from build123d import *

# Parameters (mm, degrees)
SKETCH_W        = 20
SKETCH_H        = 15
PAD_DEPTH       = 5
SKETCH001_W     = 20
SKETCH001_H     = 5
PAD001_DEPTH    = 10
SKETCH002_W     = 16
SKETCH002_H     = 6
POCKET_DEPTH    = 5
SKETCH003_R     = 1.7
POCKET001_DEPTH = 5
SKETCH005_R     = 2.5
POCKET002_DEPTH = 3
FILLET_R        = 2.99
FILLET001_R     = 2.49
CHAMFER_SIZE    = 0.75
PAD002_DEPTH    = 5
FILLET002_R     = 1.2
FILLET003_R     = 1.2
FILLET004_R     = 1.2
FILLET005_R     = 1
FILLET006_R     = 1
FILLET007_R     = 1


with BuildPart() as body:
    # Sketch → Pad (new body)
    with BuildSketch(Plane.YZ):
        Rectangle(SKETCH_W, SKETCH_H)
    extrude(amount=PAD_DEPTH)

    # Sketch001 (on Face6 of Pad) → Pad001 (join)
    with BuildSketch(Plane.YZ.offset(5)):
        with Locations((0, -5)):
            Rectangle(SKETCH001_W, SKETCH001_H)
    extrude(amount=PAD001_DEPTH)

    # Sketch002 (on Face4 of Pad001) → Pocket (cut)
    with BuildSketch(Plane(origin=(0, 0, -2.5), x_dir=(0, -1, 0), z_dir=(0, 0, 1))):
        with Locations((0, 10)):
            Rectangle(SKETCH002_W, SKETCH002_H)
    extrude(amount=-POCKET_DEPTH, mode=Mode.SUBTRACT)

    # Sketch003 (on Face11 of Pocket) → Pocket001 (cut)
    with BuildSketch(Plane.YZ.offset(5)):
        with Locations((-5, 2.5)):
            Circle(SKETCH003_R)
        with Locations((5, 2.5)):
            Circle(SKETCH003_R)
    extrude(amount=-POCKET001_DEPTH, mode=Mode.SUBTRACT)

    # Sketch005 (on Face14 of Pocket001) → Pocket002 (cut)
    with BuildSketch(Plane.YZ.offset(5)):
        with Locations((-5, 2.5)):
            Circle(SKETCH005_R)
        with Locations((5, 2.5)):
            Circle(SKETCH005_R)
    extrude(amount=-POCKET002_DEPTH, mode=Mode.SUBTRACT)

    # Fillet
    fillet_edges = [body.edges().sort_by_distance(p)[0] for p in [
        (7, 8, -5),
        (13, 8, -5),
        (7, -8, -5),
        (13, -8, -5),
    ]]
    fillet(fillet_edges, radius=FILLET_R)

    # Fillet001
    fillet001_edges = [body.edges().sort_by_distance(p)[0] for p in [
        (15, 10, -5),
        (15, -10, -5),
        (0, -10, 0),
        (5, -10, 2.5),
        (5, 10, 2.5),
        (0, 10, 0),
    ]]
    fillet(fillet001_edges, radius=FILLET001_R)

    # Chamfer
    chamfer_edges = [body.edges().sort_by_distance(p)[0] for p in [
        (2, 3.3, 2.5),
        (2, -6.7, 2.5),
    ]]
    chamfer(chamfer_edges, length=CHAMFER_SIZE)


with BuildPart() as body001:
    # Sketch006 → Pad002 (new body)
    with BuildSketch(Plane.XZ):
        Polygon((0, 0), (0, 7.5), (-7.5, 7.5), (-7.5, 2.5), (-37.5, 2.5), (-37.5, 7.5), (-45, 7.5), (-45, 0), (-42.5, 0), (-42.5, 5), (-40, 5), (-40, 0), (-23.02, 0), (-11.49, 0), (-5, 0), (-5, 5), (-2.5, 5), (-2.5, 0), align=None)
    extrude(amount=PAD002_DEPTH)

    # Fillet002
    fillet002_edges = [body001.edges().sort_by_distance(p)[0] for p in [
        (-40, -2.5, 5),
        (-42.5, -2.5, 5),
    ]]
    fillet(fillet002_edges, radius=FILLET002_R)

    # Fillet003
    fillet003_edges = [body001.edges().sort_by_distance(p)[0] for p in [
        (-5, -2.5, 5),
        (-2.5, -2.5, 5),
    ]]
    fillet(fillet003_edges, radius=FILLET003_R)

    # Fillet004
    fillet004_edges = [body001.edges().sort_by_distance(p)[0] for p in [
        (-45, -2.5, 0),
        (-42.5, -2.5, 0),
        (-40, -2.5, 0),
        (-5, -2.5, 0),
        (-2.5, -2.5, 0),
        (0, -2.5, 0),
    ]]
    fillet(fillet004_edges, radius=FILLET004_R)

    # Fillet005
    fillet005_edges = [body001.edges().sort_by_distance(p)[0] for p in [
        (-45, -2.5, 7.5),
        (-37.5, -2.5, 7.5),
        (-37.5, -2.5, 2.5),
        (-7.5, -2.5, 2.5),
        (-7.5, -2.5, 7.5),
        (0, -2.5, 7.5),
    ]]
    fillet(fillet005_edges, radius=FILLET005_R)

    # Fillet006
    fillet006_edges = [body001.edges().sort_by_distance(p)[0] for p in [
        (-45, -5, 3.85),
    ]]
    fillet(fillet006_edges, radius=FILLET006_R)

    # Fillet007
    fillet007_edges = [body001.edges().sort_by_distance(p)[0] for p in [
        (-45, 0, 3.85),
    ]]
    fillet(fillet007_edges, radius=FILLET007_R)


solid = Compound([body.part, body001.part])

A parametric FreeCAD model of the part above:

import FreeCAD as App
import Part
import Sketcher


def edges_at(feature, points):
    """Names of the edges that pass closest to the given points."""
    edges = feature.Shape.Edges
    near = lambda p: min(range(len(edges)), key=lambda i: edges[i].distToShape(Part.Vertex(*p))[0])
    return sorted({f"Edge{near(p) + 1}" for p in points})


def add_polygon(sketch, points):
    """Adds a closed chain of lines whose ends are joined by coincident constraints."""
    first, n = sketch.GeometryCount, len(points)
    for a, b in zip(points, points[1:] + points[:1]):
        sketch.addGeometry(Part.LineSegment(App.Vector(*a, 0), App.Vector(*b, 0)), False)
    for i in range(n):
        sketch.addConstraint(Sketcher.Constraint("Coincident", first + i, 2, first + (i + 1) % n, 1))

doc = App.newDocument("Part")
body = doc.addObject("PartDesign::Body", "Body")

sketch1 = body.newObject("Sketcher::SketchObject", "Sketch")
sketch1.AttachmentSupport = (doc.getObject("YZ_Plane"), [""])
sketch1.MapMode = "FlatFace"
add_polygon(sketch1, [(-10, 8), (-10, -8), (10, -8), (10, 8)])
sketch1.addConstraint(Sketcher.Constraint("Vertical", 0))
sketch1.addConstraint(Sketcher.Constraint("Horizontal", 1))
sketch1.addConstraint(Sketcher.Constraint("Vertical", 2))
sketch1.addConstraint(Sketcher.Constraint("Horizontal", 3))
sketch1.addConstraint(Sketcher.Constraint("Symmetric", 0, 2, 2, 2, -1, 1))
sketch1.addConstraint(Sketcher.Constraint("DistanceX", 1, 1, 1, 2, 20.0))
sketch1.addConstraint(Sketcher.Constraint("DistanceY", 0, 2, 0, 1, 15.0))
pad1 = body.newObject("PartDesign::Pad", "Pad")
pad1.Profile = sketch1
pad1.Length = 5

sketch2 = body.newObject("Sketcher::SketchObject", "Sketch001")
sketch2.AttachmentSupport = (doc.getObject("YZ_Plane"), [""])
sketch2.MapMode = "FlatFace"
sketch2.AttachmentOffset = App.Placement(App.Vector(0, 0, 5), App.Rotation())
add_polygon(sketch2, [(-10, -2), (-10, -8), (10, -8), (10, -2)])
sketch2.addConstraint(Sketcher.Constraint("Vertical", 0))
sketch2.addConstraint(Sketcher.Constraint("Horizontal", 1))
sketch2.addConstraint(Sketcher.Constraint("Vertical", 2))
sketch2.addConstraint(Sketcher.Constraint("Horizontal", 3))
sketch2.addConstraint(Sketcher.Constraint("DistanceX", 1, 1, 1, 2, 20.0))
sketch2.addConstraint(Sketcher.Constraint("DistanceY", 0, 2, 0, 1, 5.0))
sketch2.addConstraint(Sketcher.Constraint("DistanceX", 0, 2, -1, 1, 10.0))
sketch2.addConstraint(Sketcher.Constraint("DistanceY", 0, 2, -1, 1, 7.5))
pad2 = body.newObject("PartDesign::Pad", "Pad001")
pad2.Profile = sketch2
pad2.Length = 10

sketch3 = body.newObject("Sketcher::SketchObject", "Sketch002")
sketch3.AttachmentSupport = (doc.getObject("XY_Plane"), [""])
sketch3.MapMode = "FlatFace"
sketch3.AttachmentOffset = App.Placement(App.Vector(0, 0, -2.5), App.Rotation())
add_polygon(sketch3, [(13, 8), (7, 8), (7, -8), (13, -8)])
sketch3.addConstraint(Sketcher.Constraint("Horizontal", 0))
sketch3.addConstraint(Sketcher.Constraint("Vertical", 1))
sketch3.addConstraint(Sketcher.Constraint("Horizontal", 2))
sketch3.addConstraint(Sketcher.Constraint("Vertical", 3))
sketch3.addConstraint(Sketcher.Constraint("DistanceX", 0, 2, 0, 1, 6.0))
sketch3.addConstraint(Sketcher.Constraint("DistanceY", 1, 2, 1, 1, 16.0))
sketch3.addConstraint(Sketcher.Constraint("DistanceX", -1, 1, 0, 2, 7.0))
sketch3.addConstraint(Sketcher.Constraint("DistanceY", -1, 1, 0, 2, 8.0))
pocket1 = body.newObject("PartDesign::Pocket", "Pocket")
pocket1.Profile = sketch3
pocket1.Length = 5

sketch4 = body.newObject("Sketcher::SketchObject", "Sketch003")
sketch4.AttachmentSupport = (doc.getObject("YZ_Plane"), [""])
sketch4.MapMode = "FlatFace"
sketch4.AttachmentOffset = App.Placement(App.Vector(0, 0, 5), App.Rotation())
sketch4.addGeometry(Part.Circle(App.Vector(-5, 2.5, 0), App.Vector(0, 0, 1), 1.7), False)
sketch4.addGeometry(Part.Circle(App.Vector(5, 2.5, 0), App.Vector(0, 0, 1), 1.7), False)
sketch4.addConstraint(Sketcher.Constraint("Equal", 0, 1))
sketch4.addConstraint(Sketcher.Constraint("Symmetric", 0, 3, 1, 3, -2))
sketch4.addConstraint(Sketcher.Constraint("Diameter", 0, 3.4))
sketch4.addConstraint(Sketcher.Constraint("DistanceX", 0, 3, -1, 1, 5.0))
sketch4.addConstraint(Sketcher.Constraint("DistanceY", -1, 1, 0, 3, 2.5))
pocket2 = body.newObject("PartDesign::Pocket", "Pocket001")
pocket2.Profile = sketch4
pocket2.Length = 5

sketch5 = body.newObject("Sketcher::SketchObject", "Sketch004")
sketch5.AttachmentSupport = (doc.getObject("YZ_Plane"), [""])
sketch5.MapMode = "FlatFace"
sketch5.AttachmentOffset = App.Placement(App.Vector(0, 0, 5), App.Rotation())
sketch5.addGeometry(Part.Circle(App.Vector(-5, 2.5, 0), App.Vector(0, 0, 1), 2.5), False)
sketch5.addGeometry(Part.Circle(App.Vector(5, 2.5, 0), App.Vector(0, 0, 1), 2.5), False)
sketch5.addConstraint(Sketcher.Constraint("Equal", 0, 1))
sketch5.addConstraint(Sketcher.Constraint("Symmetric", 0, 3, 1, 3, -2))
sketch5.addConstraint(Sketcher.Constraint("Diameter", 0, 5.0))
sketch5.addConstraint(Sketcher.Constraint("DistanceX", 0, 3, -1, 1, 5.0))
sketch5.addConstraint(Sketcher.Constraint("DistanceY", -1, 1, 0, 3, 2.5))
pocket3 = body.newObject("PartDesign::Pocket", "Pocket002")
pocket3.Profile = sketch5
pocket3.Length = 3
doc.recompute()

fillet = body.newObject("PartDesign::Fillet", "Fillet")
fillet.Base = (pocket3, edges_at(pocket3, [
    (7, 8, -5),
    (13, 8, -5),
    (7, -8, -5),
    (13, -8, -5),
]))
fillet.Radius = 2.99
doc.recompute()

fillet2 = body.newObject("PartDesign::Fillet", "Fillet001")
fillet2.Base = (fillet, edges_at(fillet, [
    (15, 10, -5),
    (15, -10, -5),
    (0, -10, 0),
    (5, -10, 2.5),
    (5, 10, 2.5),
    (0, 10, 0),
]))
fillet2.Radius = 2.49
doc.recompute()

chamfer = body.newObject("PartDesign::Chamfer", "Chamfer")
chamfer.Base = (fillet2, edges_at(fillet2, [(2, 3.3, 2.5), (2, -6.7, 2.5)]))
chamfer.Size = 0.75
body2 = doc.addObject("PartDesign::Body", "Body001")

sketch6 = body2.newObject("Sketcher::SketchObject", "Sketch005")
sketch6.AttachmentSupport = (doc.getObject("XZ_Plane001"), [""])
sketch6.MapMode = "FlatFace"
add_polygon(sketch6, [(0, 0), (0, 7.5), (-7.5, 7.5), (-7.5, 2.5), (-37.5, 2.5), (-37.5, 7.5), (-45, 7.5), (-45, 0), (-42.5, 0), (-42.5, 5), (-40, 5), (-40, 0), (-5, 0), (-5, 5), (-2.5, 5), (-2.5, 0)])
sketch6.addConstraint(Sketcher.Constraint("Vertical", 0))
sketch6.addConstraint(Sketcher.Constraint("Horizontal", 1))
sketch6.addConstraint(Sketcher.Constraint("Vertical", 2))
sketch6.addConstraint(Sketcher.Constraint("Horizontal", 3))
sketch6.addConstraint(Sketcher.Constraint("Vertical", 4))
sketch6.addConstraint(Sketcher.Constraint("Horizontal", 5))
sketch6.addConstraint(Sketcher.Constraint("Vertical", 6))
sketch6.addConstraint(Sketcher.Constraint("Horizontal", 7))
sketch6.addConstraint(Sketcher.Constraint("Vertical", 8))
sketch6.addConstraint(Sketcher.Constraint("Horizontal", 9))
sketch6.addConstraint(Sketcher.Constraint("Vertical", 10))
sketch6.addConstraint(Sketcher.Constraint("Horizontal", 11))
sketch6.addConstraint(Sketcher.Constraint("Vertical", 12))
sketch6.addConstraint(Sketcher.Constraint("Horizontal", 13))
sketch6.addConstraint(Sketcher.Constraint("Vertical", 14))
sketch6.addConstraint(Sketcher.Constraint("Horizontal", 15))
sketch6.addConstraint(Sketcher.Constraint("Coincident", 15, 2, -1, 1))
sketch6.addConstraint(Sketcher.Constraint("PointOnObject", 6, 2, -1))
sketch6.addConstraint(Sketcher.Constraint("PointOnObject", 10, 2, -1))
sketch6.addConstraint(Sketcher.Constraint("Horizontal", 1, 2, 4, 2))
sketch6.addConstraint(Sketcher.Constraint("Horizontal", 9, 2, 12, 2))
sketch6.addConstraint(Sketcher.Constraint("Equal", 1, 5))
sketch6.addConstraint(Sketcher.Constraint("Equal", 7, 9))
sketch6.addConstraint(Sketcher.Constraint("Equal", 9, 13))
sketch6.addConstraint(Sketcher.Constraint("Equal", 13, 15))
sketch6.addConstraint(Sketcher.Constraint("Equal", 5, 0))
sketch6.addConstraint(Sketcher.Constraint("Equal", 4, 8))
sketch6.addConstraint(Sketcher.Constraint("DistanceX", 3, 2, 3, 1, 30.0))
sketch6.addConstraint(Sketcher.Constraint("DistanceX", 11, 1, 11, 2, 35.0))
sketch6.addConstraint(Sketcher.Constraint("DistanceY", 2, 2, 2, 1, 5.0))
sketch6.addConstraint(Sketcher.Constraint("DistanceX", 1, 2, 1, 1, 7.5))
pad3 = body2.newObject("PartDesign::Pad", "Pad002")
pad3.Profile = sketch6
pad3.Length = 5
doc.recompute()

fillet3 = body2.newObject("PartDesign::Fillet", "Fillet002")
fillet3.Base = (pad3, edges_at(pad3, [(-40, -2.5, 5), (-42.5, -2.5, 5)]))
fillet3.Radius = 1.2
doc.recompute()

fillet4 = body2.newObject("PartDesign::Fillet", "Fillet003")
fillet4.Base = (fillet3, edges_at(fillet3, [(-5, -2.5, 5), (-2.5, -2.5, 5)]))
fillet4.Radius = 1.2
doc.recompute()

fillet5 = body2.newObject("PartDesign::Fillet", "Fillet004")
fillet5.Base = (fillet4, edges_at(fillet4, [
    (-45, -2.5, 0),
    (-42.5, -2.5, 0),
    (-40, -2.5, 0),
    (-5, -2.5, 0),
    (-2.5, -2.5, 0),
    (0, -2.5, 0),
]))
fillet5.Radius = 1.2
doc.recompute()

fillet6 = body2.newObject("PartDesign::Fillet", "Fillet005")
fillet6.Base = (fillet5, edges_at(fillet5, [
    (-45, -2.5, 7.5),
    (-37.5, -2.5, 7.5),
    (-37.5, -2.5, 2.5),
    (-7.5, -2.5, 2.5),
    (-7.5, -2.5, 7.5),
    (0, -2.5, 7.5),
]))
fillet6.Radius = 1
doc.recompute()

fillet7 = body2.newObject("PartDesign::Fillet", "Fillet006")
fillet7.Base = (fillet6, edges_at(fillet6, [(-45, -5, 3.85)]))
fillet7.Radius = 1
doc.recompute()

fillet8 = body2.newObject("PartDesign::Fillet", "Fillet007")
fillet8.Base = (fillet7, edges_at(fillet7, [(-45, 0, 3.85)]))
fillet8.Radius = 1

doc.recompute()
